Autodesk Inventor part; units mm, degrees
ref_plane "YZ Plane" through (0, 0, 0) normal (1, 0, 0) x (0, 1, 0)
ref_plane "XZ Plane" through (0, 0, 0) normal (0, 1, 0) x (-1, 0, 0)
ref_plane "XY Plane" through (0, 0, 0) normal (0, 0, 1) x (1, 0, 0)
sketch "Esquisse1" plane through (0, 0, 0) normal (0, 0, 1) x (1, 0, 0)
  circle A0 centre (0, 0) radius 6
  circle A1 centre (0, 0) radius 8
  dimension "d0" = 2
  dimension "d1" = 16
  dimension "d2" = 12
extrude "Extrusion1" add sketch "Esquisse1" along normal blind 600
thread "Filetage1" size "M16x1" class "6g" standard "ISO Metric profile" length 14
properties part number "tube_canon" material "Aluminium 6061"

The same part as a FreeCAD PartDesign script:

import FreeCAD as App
import Part
import Sketcher
from FreeCAD import Vector

doc = App.newDocument("Part")
params = doc.addObject("Spreadsheet::Sheet", "Params")
for row, (alias, value) in enumerate([
    ("sketch1_diameter", "16 mm"),
    ("sketch1_diameter2", "12 mm"),
    ("pad1_length", "600 mm"),
], start=1):
    params.set(f"A{row}", alias)
    params.set(f"B{row}", "=" + value)
    params.setAlias(f"B{row}", alias)

body = doc.addObject("PartDesign::Body", "Body")

# Sketch on XY plane
sketch1 = doc.addObject("Sketcher::SketchObject", "Sketch")
body.addObject(sketch1)
sketch1.AttachmentSupport = (doc.XY_Plane, [""])
sketch1.MapMode = "FlatFace"
sketch1.addGeometry(Part.Circle(Vector(0, 0, 0), Vector(0, 0, 1), 8), False)
sketch1.addGeometry(Part.Circle(Vector(0, 0, 0), Vector(0, 0, 1), 6), False)
sketch1.addConstraint(Sketcher.Constraint("Coincident", 0, 3, -1, 1))
sketch1.addConstraint(Sketcher.Constraint("Coincident", 1, 3, -1, 1))
sketch1.addConstraint(Sketcher.Constraint("Diameter", 0, 16.0))
sketch1.addConstraint(Sketcher.Constraint("Diameter", 1, 12.0))
sketch1.setExpression("Constraints[2]", "Params.sketch1_diameter")
sketch1.setExpression("Constraints[3]", "Params.sketch1_diameter2")
pad1 = doc.addObject("PartDesign::Pad", "Pad")
body.addObject(pad1)
pad1.Profile = sketch1
pad1.setExpression("Length", "Params.pad1_length")

doc.recompute()
